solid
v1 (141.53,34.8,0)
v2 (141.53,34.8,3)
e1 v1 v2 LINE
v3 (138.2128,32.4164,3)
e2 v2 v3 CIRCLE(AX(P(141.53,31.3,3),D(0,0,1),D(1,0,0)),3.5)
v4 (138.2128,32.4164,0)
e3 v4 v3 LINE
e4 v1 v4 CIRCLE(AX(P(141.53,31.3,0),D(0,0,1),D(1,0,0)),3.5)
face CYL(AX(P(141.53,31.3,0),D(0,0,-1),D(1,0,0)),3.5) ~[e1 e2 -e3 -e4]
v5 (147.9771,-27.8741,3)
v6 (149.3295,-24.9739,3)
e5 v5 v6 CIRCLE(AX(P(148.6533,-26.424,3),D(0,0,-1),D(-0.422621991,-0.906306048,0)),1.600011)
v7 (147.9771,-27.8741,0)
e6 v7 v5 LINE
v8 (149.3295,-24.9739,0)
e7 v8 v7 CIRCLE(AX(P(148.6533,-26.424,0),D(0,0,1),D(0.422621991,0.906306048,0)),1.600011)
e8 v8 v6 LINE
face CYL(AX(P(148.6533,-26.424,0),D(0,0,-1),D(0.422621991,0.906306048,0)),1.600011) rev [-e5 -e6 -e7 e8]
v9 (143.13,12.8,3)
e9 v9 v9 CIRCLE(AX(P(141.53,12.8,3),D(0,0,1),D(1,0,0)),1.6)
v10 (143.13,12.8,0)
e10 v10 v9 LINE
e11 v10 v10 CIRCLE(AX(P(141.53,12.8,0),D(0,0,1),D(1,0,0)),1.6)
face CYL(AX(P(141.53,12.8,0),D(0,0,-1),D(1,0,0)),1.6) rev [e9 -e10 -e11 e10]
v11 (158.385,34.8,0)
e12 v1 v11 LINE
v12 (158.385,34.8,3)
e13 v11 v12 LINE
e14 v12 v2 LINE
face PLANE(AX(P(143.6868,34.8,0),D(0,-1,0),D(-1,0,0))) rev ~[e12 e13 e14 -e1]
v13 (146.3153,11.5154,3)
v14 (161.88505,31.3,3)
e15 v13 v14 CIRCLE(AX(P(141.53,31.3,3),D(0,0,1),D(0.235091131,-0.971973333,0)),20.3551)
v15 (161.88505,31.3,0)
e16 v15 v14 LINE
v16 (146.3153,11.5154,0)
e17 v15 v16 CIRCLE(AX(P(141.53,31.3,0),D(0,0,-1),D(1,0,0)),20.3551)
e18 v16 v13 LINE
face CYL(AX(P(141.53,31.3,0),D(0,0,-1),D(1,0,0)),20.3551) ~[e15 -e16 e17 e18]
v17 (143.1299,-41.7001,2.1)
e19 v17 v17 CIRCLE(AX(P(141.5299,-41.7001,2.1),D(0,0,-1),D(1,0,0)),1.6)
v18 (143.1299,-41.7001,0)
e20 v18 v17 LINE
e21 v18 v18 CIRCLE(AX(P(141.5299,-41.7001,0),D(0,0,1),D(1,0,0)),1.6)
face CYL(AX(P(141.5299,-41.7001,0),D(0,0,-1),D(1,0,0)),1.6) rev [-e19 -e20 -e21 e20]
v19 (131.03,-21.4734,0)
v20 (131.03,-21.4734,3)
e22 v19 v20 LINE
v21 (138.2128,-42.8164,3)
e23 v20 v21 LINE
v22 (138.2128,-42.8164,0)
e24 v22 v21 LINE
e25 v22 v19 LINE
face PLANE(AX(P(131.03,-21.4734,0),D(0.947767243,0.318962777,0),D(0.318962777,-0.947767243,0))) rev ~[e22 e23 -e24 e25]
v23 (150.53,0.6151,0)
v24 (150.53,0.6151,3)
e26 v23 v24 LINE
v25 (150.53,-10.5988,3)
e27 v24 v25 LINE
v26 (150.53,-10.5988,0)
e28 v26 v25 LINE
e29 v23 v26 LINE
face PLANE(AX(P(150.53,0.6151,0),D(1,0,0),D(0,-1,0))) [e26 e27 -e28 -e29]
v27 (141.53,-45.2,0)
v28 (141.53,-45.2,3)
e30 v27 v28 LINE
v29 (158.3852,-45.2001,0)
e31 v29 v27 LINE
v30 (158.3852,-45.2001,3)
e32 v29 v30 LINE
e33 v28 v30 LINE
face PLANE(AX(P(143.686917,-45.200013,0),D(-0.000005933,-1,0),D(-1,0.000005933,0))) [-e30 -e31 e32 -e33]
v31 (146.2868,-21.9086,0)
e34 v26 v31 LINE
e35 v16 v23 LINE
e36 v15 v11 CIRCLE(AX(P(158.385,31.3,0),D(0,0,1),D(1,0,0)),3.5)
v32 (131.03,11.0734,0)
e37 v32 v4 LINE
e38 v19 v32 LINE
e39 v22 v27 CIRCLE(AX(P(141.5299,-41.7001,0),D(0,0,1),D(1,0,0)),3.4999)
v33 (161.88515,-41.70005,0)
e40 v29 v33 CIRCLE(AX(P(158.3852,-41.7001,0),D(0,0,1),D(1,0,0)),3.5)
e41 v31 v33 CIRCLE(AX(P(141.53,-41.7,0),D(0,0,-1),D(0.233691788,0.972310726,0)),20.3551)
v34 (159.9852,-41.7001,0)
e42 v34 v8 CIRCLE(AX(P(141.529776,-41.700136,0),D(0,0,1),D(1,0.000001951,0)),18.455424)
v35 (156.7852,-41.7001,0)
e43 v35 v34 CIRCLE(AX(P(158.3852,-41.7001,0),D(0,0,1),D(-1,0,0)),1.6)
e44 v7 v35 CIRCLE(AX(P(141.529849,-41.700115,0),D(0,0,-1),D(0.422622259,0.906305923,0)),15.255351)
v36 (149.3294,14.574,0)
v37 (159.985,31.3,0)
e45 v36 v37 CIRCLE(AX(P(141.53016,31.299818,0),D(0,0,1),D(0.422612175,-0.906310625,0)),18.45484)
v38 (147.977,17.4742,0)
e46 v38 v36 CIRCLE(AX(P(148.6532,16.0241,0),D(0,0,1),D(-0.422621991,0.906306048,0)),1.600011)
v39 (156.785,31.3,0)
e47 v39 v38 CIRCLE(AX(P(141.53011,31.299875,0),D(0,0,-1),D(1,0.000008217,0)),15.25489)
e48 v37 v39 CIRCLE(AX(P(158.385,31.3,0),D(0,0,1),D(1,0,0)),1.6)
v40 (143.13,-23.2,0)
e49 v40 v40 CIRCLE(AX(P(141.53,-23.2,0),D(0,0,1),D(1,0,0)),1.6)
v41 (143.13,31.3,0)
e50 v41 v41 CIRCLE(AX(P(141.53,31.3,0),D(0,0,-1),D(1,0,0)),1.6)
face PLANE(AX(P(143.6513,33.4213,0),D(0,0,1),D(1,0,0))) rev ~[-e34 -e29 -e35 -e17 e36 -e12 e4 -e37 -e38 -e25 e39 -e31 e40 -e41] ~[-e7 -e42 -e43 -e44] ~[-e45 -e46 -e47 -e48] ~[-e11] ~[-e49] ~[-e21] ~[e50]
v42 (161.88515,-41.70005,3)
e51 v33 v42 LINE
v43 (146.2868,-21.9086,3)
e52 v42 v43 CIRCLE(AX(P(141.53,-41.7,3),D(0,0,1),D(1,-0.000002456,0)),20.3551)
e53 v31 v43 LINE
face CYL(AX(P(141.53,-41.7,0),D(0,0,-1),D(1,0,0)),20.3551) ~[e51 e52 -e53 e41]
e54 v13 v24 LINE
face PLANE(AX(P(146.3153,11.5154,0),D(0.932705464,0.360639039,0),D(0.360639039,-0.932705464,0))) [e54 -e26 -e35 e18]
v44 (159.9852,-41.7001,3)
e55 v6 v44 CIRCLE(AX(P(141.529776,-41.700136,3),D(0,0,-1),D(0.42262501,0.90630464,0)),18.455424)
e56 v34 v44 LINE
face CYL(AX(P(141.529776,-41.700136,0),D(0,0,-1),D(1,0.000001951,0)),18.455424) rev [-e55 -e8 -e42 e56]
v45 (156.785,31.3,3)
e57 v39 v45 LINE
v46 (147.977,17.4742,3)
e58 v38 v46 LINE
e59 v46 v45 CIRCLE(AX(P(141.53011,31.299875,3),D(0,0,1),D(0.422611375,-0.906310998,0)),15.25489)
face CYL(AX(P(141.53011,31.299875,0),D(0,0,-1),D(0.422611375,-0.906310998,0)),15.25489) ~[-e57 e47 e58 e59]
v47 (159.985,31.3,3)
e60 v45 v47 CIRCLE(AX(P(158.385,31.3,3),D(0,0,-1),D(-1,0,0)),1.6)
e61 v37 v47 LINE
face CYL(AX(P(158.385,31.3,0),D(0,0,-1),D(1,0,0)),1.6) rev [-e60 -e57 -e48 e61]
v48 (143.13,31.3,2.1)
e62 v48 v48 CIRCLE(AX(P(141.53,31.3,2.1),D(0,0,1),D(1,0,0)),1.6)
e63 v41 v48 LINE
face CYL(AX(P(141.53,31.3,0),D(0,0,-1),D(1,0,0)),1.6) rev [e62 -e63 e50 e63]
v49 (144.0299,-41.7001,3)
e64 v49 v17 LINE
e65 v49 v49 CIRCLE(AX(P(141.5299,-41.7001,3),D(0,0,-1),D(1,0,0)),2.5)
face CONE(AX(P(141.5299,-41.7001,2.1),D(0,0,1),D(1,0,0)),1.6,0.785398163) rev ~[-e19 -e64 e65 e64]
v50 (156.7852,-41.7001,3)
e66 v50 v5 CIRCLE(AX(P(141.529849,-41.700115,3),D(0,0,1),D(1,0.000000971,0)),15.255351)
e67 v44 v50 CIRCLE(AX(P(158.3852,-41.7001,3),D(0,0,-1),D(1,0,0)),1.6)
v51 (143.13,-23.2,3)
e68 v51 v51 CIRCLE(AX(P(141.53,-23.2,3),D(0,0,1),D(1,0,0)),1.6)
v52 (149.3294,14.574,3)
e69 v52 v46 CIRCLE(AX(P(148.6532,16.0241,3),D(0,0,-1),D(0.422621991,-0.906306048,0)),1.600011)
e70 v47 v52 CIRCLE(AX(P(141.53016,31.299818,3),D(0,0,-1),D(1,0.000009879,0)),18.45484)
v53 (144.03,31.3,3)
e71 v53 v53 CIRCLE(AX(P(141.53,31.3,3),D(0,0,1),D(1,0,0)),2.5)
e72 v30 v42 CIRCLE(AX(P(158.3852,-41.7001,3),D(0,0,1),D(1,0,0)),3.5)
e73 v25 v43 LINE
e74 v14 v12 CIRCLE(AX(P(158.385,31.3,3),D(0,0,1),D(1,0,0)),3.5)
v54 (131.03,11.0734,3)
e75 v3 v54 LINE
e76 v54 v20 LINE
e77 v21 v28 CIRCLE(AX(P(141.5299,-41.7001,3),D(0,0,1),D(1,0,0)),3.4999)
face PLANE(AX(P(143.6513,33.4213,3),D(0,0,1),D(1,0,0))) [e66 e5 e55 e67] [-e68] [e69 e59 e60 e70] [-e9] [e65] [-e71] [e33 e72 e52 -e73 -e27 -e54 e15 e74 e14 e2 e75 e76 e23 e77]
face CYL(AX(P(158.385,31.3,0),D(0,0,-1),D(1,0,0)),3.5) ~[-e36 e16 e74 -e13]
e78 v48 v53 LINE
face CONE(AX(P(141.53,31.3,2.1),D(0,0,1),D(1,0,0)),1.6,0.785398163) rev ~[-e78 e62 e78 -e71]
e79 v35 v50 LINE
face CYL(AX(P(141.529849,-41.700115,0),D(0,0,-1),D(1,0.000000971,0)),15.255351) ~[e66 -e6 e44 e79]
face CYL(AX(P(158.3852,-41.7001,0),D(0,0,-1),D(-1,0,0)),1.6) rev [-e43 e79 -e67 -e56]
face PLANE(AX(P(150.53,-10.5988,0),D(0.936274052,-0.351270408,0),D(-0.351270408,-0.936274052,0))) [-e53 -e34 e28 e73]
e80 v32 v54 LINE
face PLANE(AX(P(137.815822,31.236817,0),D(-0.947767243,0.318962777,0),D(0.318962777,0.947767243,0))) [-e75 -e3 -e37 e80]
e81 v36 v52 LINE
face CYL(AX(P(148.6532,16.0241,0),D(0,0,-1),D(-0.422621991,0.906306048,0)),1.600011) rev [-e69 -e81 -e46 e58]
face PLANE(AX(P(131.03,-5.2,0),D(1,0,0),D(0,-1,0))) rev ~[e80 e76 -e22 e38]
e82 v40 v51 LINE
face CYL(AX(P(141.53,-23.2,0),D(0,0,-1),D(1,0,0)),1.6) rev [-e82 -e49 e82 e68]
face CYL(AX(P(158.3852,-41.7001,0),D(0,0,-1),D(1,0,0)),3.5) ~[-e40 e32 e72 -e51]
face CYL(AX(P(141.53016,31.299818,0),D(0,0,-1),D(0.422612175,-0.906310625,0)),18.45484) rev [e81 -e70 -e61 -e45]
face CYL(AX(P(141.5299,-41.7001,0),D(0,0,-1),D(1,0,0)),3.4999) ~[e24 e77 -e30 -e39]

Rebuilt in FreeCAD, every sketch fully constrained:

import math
import FreeCAD as App
import Part
import Sketcher
Q = App.Units.Quantity


def edges_at(feature, points):
    """Names of the edges that pass closest to the given points."""
    edges = feature.Shape.Edges
    near = lambda p: min(range(len(edges)), key=lambda i: edges[i].distToShape(Part.Vertex(*p))[0])
    return sorted({f"Edge{near(p) + 1}" for p in points})

doc = App.newDocument("Part")
params = doc.addObject("Spreadsheet::Sheet", "Params")
for row, (alias, value) in enumerate([
    ("sketch1_radius", "3.5 mm"),
    ("sketch1_radius2", "3.5 mm"),
    ("sketch1_radius3", "3.5 mm"),
    ("sketch1_radius4", "3.5 mm"),
    ("sketch1_diameter", "3.2 mm"),
    ("pad1_length", "3 mm"),
    ("chamfer_size", "0.9 mm"),
], start=1):
    params.set(f"A{row}", alias)
    params.set(f"B{row}", "=" + value)
    params.setAlias(f"B{row}", alias)

body = doc.addObject("PartDesign::Body", "Body")

sketch1 = body.newObject("Sketcher::SketchObject", "Sketch")
sketch1.AttachmentSupport = (doc.getObject("XY_Plane"), [""])
sketch1.MapMode = "FlatFace"
sketch1.addGeometry(Part.ArcOfCircle(Part.Circle(App.Vector(141.53, 31.3, 0), App.Vector(0, 0, 1), 3.5), math.radians(90), math.radians(161.399397)), False)
sketch1.addGeometry(Part.LineSegment(App.Vector(138.2128, 32.4164, 0), App.Vector(131.03, 11.0734, 0)), False)
sketch1.addGeometry(Part.LineSegment(App.Vector(131.03, 11.0734, 0), App.Vector(131.03, -21.4734, 0)), False)
sketch1.addGeometry(Part.LineSegment(App.Vector(131.03, -21.4734, 0), App.Vector(138.2128, -42.8164, 0)), False)
sketch1.addGeometry(Part.ArcOfCircle(Part.Circle(App.Vector(141.5299, -41.7001, 0), App.Vector(0, 0, 1), 3.4999), math.radians(-161.400426), math.radians(-89.998363)), False)
sketch1.addGeometry(Part.LineSegment(App.Vector(141.53, -45.2, 0), App.Vector(158.3852, -45.2001, 0)), False)
sketch1.addGeometry(Part.ArcOfCircle(Part.Circle(App.Vector(158.3852, -41.7001, 0), App.Vector(0, 0, 1), 3.5), math.radians(-90), math.radians(0)), False)
sketch1.addGeometry(Part.ArcOfCircle(Part.Circle(App.Vector(141.53, -41.7, 0), App.Vector(0, 0, 1), 20.3551), math.radians(-0.000141), math.radians(76.485479)), False)
sketch1.addGeometry(Part.LineSegment(App.Vector(146.2868, -21.9086, 0), App.Vector(150.53, -10.5988, 0)), False)
sketch1.addGeometry(Part.LineSegment(App.Vector(150.53, -10.5988, 0), App.Vector(150.53, 0.6151, 0)), False)
sketch1.addGeometry(Part.LineSegment(App.Vector(150.53, 0.6151, 0), App.Vector(146.3153, 11.5154, 0)), False)
sketch1.addGeometry(Part.ArcOfCircle(Part.Circle(App.Vector(141.53, 31.3, 0), App.Vector(0, 0, 1), 20.3551), math.radians(-76.403005), math.radians(0)), False)
sketch1.addGeometry(Part.ArcOfCircle(Part.Circle(App.Vector(158.385, 31.3, 0), App.Vector(0, 0, 1), 3.5), math.radians(0), math.radians(90)), False)
sketch1.addGeometry(Part.LineSegment(App.Vector(158.385, 34.8, 0), App.Vector(141.53, 34.8, 0)), False)
sketch1.addGeometry(Part.Circle(App.Vector(141.53, 31.3, 0), App.Vector(0, 0, 1), 1.6), False)
sketch1.addGeometry(Part.ArcOfCircle(Part.Circle(App.Vector(141.53, 31.3, 0), App.Vector(0, 0, 1), 15.25505), math.radians(-65.00026), math.radians(0)), False)
sketch1.addGeometry(Part.ArcOfCircle(Part.Circle(App.Vector(158.385, 31.3, 0), App.Vector(0, 0, 1), 1.6), math.radians(0), math.radians(180)), False)
sketch1.addGeometry(Part.ArcOfCircle(Part.Circle(App.Vector(141.53, 31.3, 0), App.Vector(0, 0, 1), 18.455073), math.radians(-65.000174), math.radians(0)), False)
sketch1.addGeometry(Part.ArcOfCircle(Part.Circle(App.Vector(148.6532, 16.0241, 0), App.Vector(0, 0, 1), 1.600011), math.radians(115.000236), math.radians(295.000236)), False)
sketch1.addGeometry(Part.Circle(App.Vector(141.53, 12.8, 0), App.Vector(0, 0, 1), 1.6), False)
sketch1.addGeometry(Part.Circle(App.Vector(141.53, -23.2, 0), App.Vector(0, 0, 1), 1.6), False)
sketch1.addGeometry(Part.ArcOfCircle(Part.Circle(App.Vector(141.5299, -41.7001, 0), App.Vector(0, 0, 1), 18.4553), math.radians(0), math.radians(64.999874)), False)
sketch1.addGeometry(Part.ArcOfCircle(Part.Circle(App.Vector(158.3852, -41.7001, 0), App.Vector(0, 0, 1), 1.6), math.radians(180), math.radians(360)), False)
sketch1.addGeometry(Part.ArcOfCircle(Part.Circle(App.Vector(141.5299, -41.7001, 0), App.Vector(0, 0, 1), 15.2553), math.radians(0), math.radians(64.999897)), False)
sketch1.addGeometry(Part.ArcOfCircle(Part.Circle(App.Vector(148.6533, -26.424, 0), App.Vector(0, 0, 1), 1.600011), math.radians(64.999764), math.radians(244.999764)), False)
sketch1.addGeometry(Part.Circle(App.Vector(141.5299, -41.7001, 0), App.Vector(0, 0, 1), 1.6), False)
sketch1.addConstraint(Sketcher.Constraint("Coincident", 0, 2, 1, 1))
sketch1.addConstraint(Sketcher.Constraint("Coincident", 1, 2, 2, 1))
sketch1.addConstraint(Sketcher.Constraint("Coincident", 2, 2, 3, 1))
sketch1.addConstraint(Sketcher.Constraint("Coincident", 3, 2, 4, 1))
sketch1.addConstraint(Sketcher.Constraint("Coincident", 4, 2, 5, 1))
sketch1.addConstraint(Sketcher.Constraint("Coincident", 5, 2, 6, 1))
sketch1.addConstraint(Sketcher.Constraint("Coincident", 6, 2, 7, 1))
sketch1.addConstraint(Sketcher.Constraint("Coincident", 7, 2, 8, 1))
sketch1.addConstraint(Sketcher.Constraint("Coincident", 8, 2, 9, 1))
sketch1.addConstraint(Sketcher.Constraint("Coincident", 9, 2, 10, 1))
sketch1.addConstraint(Sketcher.Constraint("Coincident", 10, 2, 11, 1))
sketch1.addConstraint(Sketcher.Constraint("Coincident", 11, 2, 12, 1))
sketch1.addConstraint(Sketcher.Constraint("Coincident", 12, 2, 13, 1))
sketch1.addConstraint(Sketcher.Constraint("Coincident", 13, 2, 0, 1))
sketch1.addConstraint(Sketcher.Constraint("Coincident", 15, 2, 16, 2))
sketch1.addConstraint(Sketcher.Constraint("Coincident", 16, 1, 17, 2))
sketch1.addConstraint(Sketcher.Constraint("Coincident", 17, 1, 18, 2))
sketch1.addConstraint(Sketcher.Constraint("Coincident", 18, 1, 15, 1))
sketch1.addConstraint(Sketcher.Constraint("Coincident", 21, 1, 22, 2))
sketch1.addConstraint(Sketcher.Constraint("Coincident", 22, 1, 23, 1))
sketch1.addConstraint(Sketcher.Constraint("Coincident", 23, 2, 24, 2))
sketch1.addConstraint(Sketcher.Constraint("Coincident", 24, 1, 21, 2))
sketch1.addConstraint(Sketcher.Constraint("Vertical", 2))
sketch1.addConstraint(Sketcher.Constraint("Horizontal", 5))
sketch1.addConstraint(Sketcher.Constraint("Vertical", 9))
sketch1.addConstraint(Sketcher.Constraint("Horizontal", 13))
sketch1.addConstraint(Sketcher.Constraint("Coincident", 7, 3, 4, 3))
sketch1.addConstraint(Sketcher.Constraint("Coincident", 11, 3, 0, 3))
sketch1.addConstraint(Sketcher.Constraint("Coincident", 14, 3, 0, 3))
sketch1.addConstraint(Sketcher.Constraint("Coincident", 15, 3, 0, 3))
sketch1.addConstraint(Sketcher.Constraint("Coincident", 16, 3, 12, 3))
sketch1.addConstraint(Sketcher.Constraint("Coincident", 17, 3, 0, 3))
sketch1.addConstraint(Sketcher.Constraint("Coincident", 21, 3, 4, 3))
sketch1.addConstraint(Sketcher.Constraint("Coincident", 22, 3, 6, 3))
sketch1.addConstraint(Sketcher.Constraint("Coincident", 23, 3, 4, 3))
sketch1.addConstraint(Sketcher.Constraint("Coincident", 25, 3, 4, 3))
sketch1.addConstraint(Sketcher.Constraint("Radius", 0, Q("3.5 mm")))
sketch1.addConstraint(Sketcher.Constraint("Radius", 4, Q("3.5 mm")))
sketch1.addConstraint(Sketcher.Constraint("Radius", 6, Q("3.5 mm")))
sketch1.addConstraint(Sketcher.Constraint("Radius", 12, Q("3.5 mm")))
sketch1.addConstraint(Sketcher.Constraint("Diameter", 14, Q("3.2 mm")))
sketch1.addConstraint(Sketcher.Constraint("Diameter", 19, Q("3.2 mm")))
sketch1.addConstraint(Sketcher.Constraint("Diameter", 20, Q("3.2 mm")))
sketch1.addConstraint(Sketcher.Constraint("Diameter", 25, Q("3.2 mm")))
sketch1.addConstraint(Sketcher.Constraint("Radius", 16, Q("1.6 mm")))
sketch1.addConstraint(Sketcher.Constraint("Radius", 22, Q("1.6 mm")))
sketch1.addConstraint(Sketcher.Constraint("Radius", 7, Q("20.355 mm")))
sketch1.addConstraint(Sketcher.Constraint("Radius", 11, Q("20.355 mm")))
sketch1.addConstraint(Sketcher.Constraint("DistanceX", 4, 3, 0, 3, Q("0 mm")))
sketch1.addConstraint(Sketcher.Constraint("DistanceY", 4, 3, 0, 3, Q("73 mm")))
sketch1.addConstraint(Sketcher.Constraint("DistanceX", 4, 3, 20, 3, Q("0 mm")))
sketch1.addConstraint(Sketcher.Constraint("DistanceY", 20, 3, 19, 3, Q("36 mm")))
sketch1.addConstraint(Sketcher.Constraint("DistanceX", 21, 3, 19, 3, Q("0 mm")))
sketch1.addConstraint(Sketcher.Constraint("DistanceX", 4, 3, 4, 2, Q("0 mm")))
sketch1.addConstraint(Sketcher.Constraint("DistanceX", 20, 3, 8, 2, Q("9 mm")))
sketch1.addConstraint(Sketcher.Constraint("DistanceY", -1, 1, 0, 3, Q("31.3 mm")))
sketch1.addConstraint(Sketcher.Constraint("DistanceY", -1, 1, 19, 3, Q("12.8 mm")))
sketch1.addConstraint(Sketcher.Constraint("DistanceY", 6, 2, -1, 1, Q("41.7 mm")))
sketch1.addConstraint(Sketcher.Constraint("DistanceY", -1, 1, 11, 2, Q("31.3 mm")))
sketch1.addConstraint(Sketcher.Constraint("DistanceY", -1, 1, 15, 2, Q("31.3 mm")))
sketch1.addConstraint(Sketcher.Constraint("DistanceY", -1, 1, 16, 1, Q("31.3 mm")))
sketch1.addConstraint(Sketcher.Constraint("DistanceY", 21, 1, -1, 1, Q("41.7 mm")))
sketch1.addConstraint(Sketcher.Constraint("DistanceY", 22, 1, -1, 1, Q("41.7 mm")))
sketch1.addConstraint(Sketcher.Constraint("DistanceX", 1, 2, 19, 3, Q("10.5 mm")))
sketch1.addConstraint(Sketcher.Constraint("DistanceX", 5, 2, 6, 2, Q("3.5 mm")))
sketch1.addConstraint(Sketcher.Constraint("DistanceX", 12, 2, 11, 2, Q("3.5 mm")))
sketch1.addConstraint(Sketcher.Constraint("DistanceX", 13, 2, 13, 1, Q("16.855 mm")))
sketch1.addConstraint(Sketcher.Constraint("DistanceY", 9, 1, 9, 2, Q("11.214 mm")))
sketch1.addConstraint(Sketcher.Constraint("DistanceX", -1, 1, 0, 3, Q("141.53 mm")))
sketch1.addConstraint(Sketcher.Constraint("DistanceY", 17, 1, 18, 3, Q("1.45 mm")))
sketch1.addConstraint(Sketcher.Constraint("DistanceY", 18, 3, 18, 1, Q("1.45 mm")))
sketch1.addConstraint(Sketcher.Constraint("DistanceY", 23, 2, 24, 3, Q("1.45 mm")))
sketch1.addConstraint(Sketcher.Constraint("DistanceY", 24, 3, 24, 1, Q("1.45 mm")))
sketch1.addConstraint(Sketcher.Constraint("DistanceY", 2, 2, 2, 1, Q("32.5468 mm")))
sketch1.addConstraint(Sketcher.Constraint("DistanceY", -1, 1, 18, 3, Q("16.024 mm")))
sketch1.addConstraint(Sketcher.Constraint("DistanceY", 24, 3, -1, 1, Q("26.424 mm")))
sketch1.addConstraint(Sketcher.Constraint("DistanceY", -1, 1, 9, 2, Q("0.615 mm")))
sketch1.addConstraint(Sketcher.Constraint("DistanceY", 1, 2, 0, 2, Q("21.343 mm")))
sketch1.addConstraint(Sketcher.Constraint("DistanceX", 3, 2, 4, 3, Q("3.317 mm")))
sketch1.addConstraint(Sketcher.Constraint("DistanceY", 7, 2, 2, 2, Q("0.435 mm")))
sketch1.addConstraint(Sketcher.Constraint("DistanceX", 4, 3, 7, 2, Q("4.757 mm")))
sketch1.addConstraint(Sketcher.Constraint("DistanceX", 10, 2, 18, 3, Q("2.338 mm")))
sketch1.setExpression("Constraints[36]", "Params.sketch1_radius")
sketch1.setExpression("Constraints[37]", "Params.sketch1_radius2")
sketch1.setExpression("Constraints[38]", "Params.sketch1_radius3")
sketch1.setExpression("Constraints[39]", "Params.sketch1_radius4")
sketch1.setExpression("Constraints[40]", "Params.sketch1_diameter")
pad1 = body.newObject("PartDesign::Pad", "Pad")
pad1.Profile = sketch1
pad1.setExpression("Length", "Params.pad1_length")
doc.recompute()

chamfer = body.newObject("PartDesign::Chamfer", "Chamfer")
chamfer.Base = (pad1, edges_at(pad1, [(139.93, 31.3, 3), (139.93, -41.7, 3)]))
chamfer.setExpression("Size", "Params.chamfer_size")

doc.recompute()
